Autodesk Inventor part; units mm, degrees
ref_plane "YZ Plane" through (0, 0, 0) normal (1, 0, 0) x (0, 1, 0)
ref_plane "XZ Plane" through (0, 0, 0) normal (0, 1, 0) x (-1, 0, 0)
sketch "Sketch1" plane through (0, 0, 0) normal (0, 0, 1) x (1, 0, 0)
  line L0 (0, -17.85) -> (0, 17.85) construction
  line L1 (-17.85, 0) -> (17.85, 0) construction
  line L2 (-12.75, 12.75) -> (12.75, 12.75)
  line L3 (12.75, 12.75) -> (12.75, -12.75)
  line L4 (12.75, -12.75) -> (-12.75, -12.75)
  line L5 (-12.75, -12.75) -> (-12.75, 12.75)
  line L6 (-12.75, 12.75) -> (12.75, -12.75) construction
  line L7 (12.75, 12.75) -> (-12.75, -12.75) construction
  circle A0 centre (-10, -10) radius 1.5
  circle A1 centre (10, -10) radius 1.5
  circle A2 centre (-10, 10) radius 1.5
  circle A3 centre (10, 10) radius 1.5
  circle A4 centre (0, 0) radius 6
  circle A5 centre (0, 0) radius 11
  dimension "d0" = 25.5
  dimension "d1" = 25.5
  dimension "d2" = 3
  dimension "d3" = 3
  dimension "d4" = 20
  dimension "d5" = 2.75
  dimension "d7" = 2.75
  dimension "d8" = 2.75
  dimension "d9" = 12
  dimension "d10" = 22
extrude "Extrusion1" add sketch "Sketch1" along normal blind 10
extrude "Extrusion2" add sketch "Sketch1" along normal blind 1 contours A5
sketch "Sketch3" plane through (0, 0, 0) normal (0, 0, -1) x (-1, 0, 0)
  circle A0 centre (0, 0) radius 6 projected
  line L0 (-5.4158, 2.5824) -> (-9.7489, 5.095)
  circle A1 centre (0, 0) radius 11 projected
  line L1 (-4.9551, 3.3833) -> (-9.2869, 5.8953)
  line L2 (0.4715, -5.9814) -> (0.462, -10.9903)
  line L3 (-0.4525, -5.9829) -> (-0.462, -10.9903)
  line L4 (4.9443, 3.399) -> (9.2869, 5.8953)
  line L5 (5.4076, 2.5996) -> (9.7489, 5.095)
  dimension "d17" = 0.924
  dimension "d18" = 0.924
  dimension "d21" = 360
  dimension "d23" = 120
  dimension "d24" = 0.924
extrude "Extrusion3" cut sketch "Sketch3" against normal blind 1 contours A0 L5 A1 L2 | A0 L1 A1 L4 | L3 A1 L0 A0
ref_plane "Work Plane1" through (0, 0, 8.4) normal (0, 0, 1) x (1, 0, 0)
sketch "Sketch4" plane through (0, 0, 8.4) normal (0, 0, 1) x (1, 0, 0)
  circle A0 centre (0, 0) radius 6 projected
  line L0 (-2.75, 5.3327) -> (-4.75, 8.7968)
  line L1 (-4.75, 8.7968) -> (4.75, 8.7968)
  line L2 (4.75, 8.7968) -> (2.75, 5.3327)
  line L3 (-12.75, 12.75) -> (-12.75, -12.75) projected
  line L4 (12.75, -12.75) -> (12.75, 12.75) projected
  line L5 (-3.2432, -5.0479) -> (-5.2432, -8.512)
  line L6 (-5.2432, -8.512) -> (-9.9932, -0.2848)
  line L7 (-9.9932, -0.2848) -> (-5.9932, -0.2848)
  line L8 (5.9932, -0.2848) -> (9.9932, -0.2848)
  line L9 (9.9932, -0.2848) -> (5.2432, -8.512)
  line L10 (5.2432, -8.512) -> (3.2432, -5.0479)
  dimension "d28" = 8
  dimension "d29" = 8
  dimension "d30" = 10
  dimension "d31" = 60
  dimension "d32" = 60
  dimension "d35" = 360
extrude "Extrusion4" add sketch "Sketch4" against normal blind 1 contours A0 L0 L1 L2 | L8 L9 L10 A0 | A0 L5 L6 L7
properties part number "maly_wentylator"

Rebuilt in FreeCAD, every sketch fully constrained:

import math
import FreeCAD as App
import Part
import Sketcher

V = App.Vector
Q = App.Units.Quantity

doc = App.newDocument("Part")
body = doc.addObject("PartDesign::Body", "Body")
body.AllowCompound = True

# Sketch on XY plane
sketch1 = body.newObject("Sketcher::SketchObject", "Sketch")
sketch1.AttachmentSupport = (doc.getObject("XY_Plane"), [""])
sketch1.MapMode = "FlatFace"
sketch1.addGeometry([
    Part.LineSegment(V(12.75, 12.75, 0), V(-12.75, 12.75, 0)),  # 0
    Part.LineSegment(V(-12.75, 12.75, 0), V(-12.75, -12.75, 0)),  # 1
    Part.LineSegment(V(-12.75, -12.75, 0), V(12.75, -12.75, 0)),  # 2
    Part.LineSegment(V(12.75, -12.75, 0), V(12.75, 12.75, 0)),  # 3
    Part.Circle(V(-10, -10, 0), V(0, 0, 1), 1.5),  # 4
    Part.Circle(V(10, -10, 0), V(0, 0, 1), 1.5),  # 5
    Part.Circle(V(-10, 10, 0), V(0, 0, 1), 1.5),  # 6
    Part.Circle(V(0, 0, 0), V(0, 0, 1), 11),  # 7
    Part.Circle(V(10, 10, 0), V(0, 0, 1), 1.5),  # 8
    Part.Circle(V(0, 0, 0), V(0, 0, 1), 6),  # 9
], False)
sketch1.addConstraint([
    Sketcher.Constraint("Coincident", 0, 2, 1, 1),
    Sketcher.Constraint("Coincident", 1, 2, 2, 1),
    Sketcher.Constraint("Coincident", 2, 2, 3, 1),
    Sketcher.Constraint("Coincident", 3, 2, 0, 1),
    Sketcher.Constraint("Horizontal", 0),
    Sketcher.Constraint("Vertical", 1),
    Sketcher.Constraint("Horizontal", 2),
    Sketcher.Constraint("Vertical", 3),
    Sketcher.Constraint("Coincident", 7, 3, -1, 1),
    Sketcher.Constraint("Coincident", 9, 3, -1, 1),
    Sketcher.Constraint("Equal", 4, 5),
    Sketcher.Constraint("Equal", 5, 6),
    Sketcher.Constraint("Equal", 6, 8),
    Sketcher.Constraint("Symmetric", 5, 3, 6, 3, -1, 1),
    Sketcher.Constraint("Symmetric", 4, 3, 8, 3, -1, 1),
    Sketcher.Constraint("Symmetric", 0, 2, 2, 2, -1, 1),
    Sketcher.Constraint("Symmetric", 4, 3, 5, 3, -2),
    Sketcher.Constraint("Equal", 2, 1),
    Sketcher.Constraint("Diameter", 4, 3.0),
    Sketcher.Constraint("Diameter", 7, 22.0),
    Sketcher.Constraint("Diameter", 9, 12.0),
    Sketcher.Constraint("DistanceX", 0, 2, 0, 1, 25.5),
    Sketcher.Constraint("DistanceX", 4, 3, 5, 3, 20.0),
    Sketcher.Constraint("DistanceY", 4, 3, 6, 3, 20.0),
])
pad1 = body.newObject("PartDesign::Pad", "Pad")
pad1.Profile = sketch1
pad1.Length = 10

# Sketch on XY plane
sketch2 = body.newObject("Sketcher::SketchObject", "Sketch001")
sketch2.AttachmentSupport = (doc.getObject("XY_Plane"), [""])
sketch2.MapMode = "FlatFace"
sketch2.addGeometry([
    Part.Circle(V(0, 0, 0), V(0, 0, 1), 11),
    Part.Circle(V(0, 0, 0), V(0, 0, 1), 6),
], False)
sketch2.addConstraint([
    Sketcher.Constraint("Coincident", 0, 3, -1, 1),
    Sketcher.Constraint("Coincident", 1, 3, -1, 1),
    Sketcher.Constraint("Diameter", 0, 22.0),
    Sketcher.Constraint("Diameter", 1, 12.0),
])
pad2 = body.newObject("PartDesign::Pad", "Pad001")
pad2.Profile = sketch2
pad2.Length = 1

# Sketch on XY plane
sketch3 = body.newObject("Sketcher::SketchObject", "Sketch002")
sketch3.AttachmentSupport = (doc.getObject("XY_Plane"), [""])
sketch3.MapMode = "FlatFace"
sketch3.addGeometry([
    Part.ArcOfCircle(Part.Circle(V(0, 0, 0), V(0, 0, 1), 6), math.radians(154.324972), math.radians(265.492826)),  # 0
    Part.LineSegment(V(-0.4715, -5.9814, 0), V(-0.462, -10.9903, 0)),  # 1
    Part.ArcOfCircle(Part.Circle(V(0, 0, 0), V(0, 0, 1), 11), math.radians(152.407394), math.radians(267.592871)),  # 2
    Part.LineSegment(V(-9.7489, 5.095, 0), V(-5.4076, 2.5996, 0)),  # 3
    Part.ArcOfCircle(Part.Circle(V(0, 0, 0), V(0, 0, 1), 6), math.radians(34.324928), math.radians(145.4931)),  # 4
    Part.LineSegment(V(-4.9443, 3.399, 0), V(-9.2869, 5.8953, 0)),  # 5
    Part.ArcOfCircle(Part.Circle(V(0, 0, 0), V(0, 0, 1), 11), math.radians(32.407274), math.radians(147.592726)),  # 6
    Part.LineSegment(V(9.2869, 5.8953, 0), V(4.9551, 3.3833, 0)),  # 7
    Part.LineSegment(V(0.462, -10.9903, 0), V(0.4525, -5.9829, 0)),  # 8
    Part.ArcOfCircle(Part.Circle(V(0, 0, 0), V(0, 0, 1), 6), math.radians(-85.674828), math.radians(25.493069)),  # 9
    Part.LineSegment(V(5.4158, 2.5824, 0), V(9.7489, 5.095, 0)),  # 10
    Part.ArcOfCircle(Part.Circle(V(0, 0, 0), V(0, 0, 1), 11), math.radians(-87.592871), math.radians(27.592606)),  # 11
], False)
sketch3.addConstraint([
    Sketcher.Constraint("Coincident", 0, 2, 1, 1),
    Sketcher.Constraint("Coincident", 1, 2, 2, 2),
    Sketcher.Constraint("Coincident", 2, 1, 3, 1),
    Sketcher.Constraint("Coincident", 3, 2, 0, 1),
    Sketcher.Constraint("Coincident", 4, 2, 5, 1),
    Sketcher.Constraint("Coincident", 5, 2, 6, 2),
    Sketcher.Constraint("Coincident", 6, 1, 7, 1),
    Sketcher.Constraint("Coincident", 7, 2, 4, 1),
    Sketcher.Constraint("Coincident", 8, 2, 9, 1),
    Sketcher.Constraint("Coincident", 9, 2, 10, 1),
    Sketcher.Constraint("Coincident", 10, 2, 11, 2),
    Sketcher.Constraint("Coincident", 11, 1, 8, 1),
    Sketcher.Constraint("Coincident", 0, 3, -1, 1),
    Sketcher.Constraint("Coincident", 2, 3, -1, 1),
    Sketcher.Constraint("Coincident", 4, 3, -1, 1),
    Sketcher.Constraint("Coincident", 6, 3, -1, 1),
    Sketcher.Constraint("Coincident", 9, 3, -1, 1),
    Sketcher.Constraint("Coincident", 11, 3, -1, 1),
    Sketcher.Constraint("Equal", 0, 4),
    Sketcher.Constraint("Equal", 2, 6),
    Sketcher.Constraint("Equal", 4, 9),
    Sketcher.Constraint("Equal", 6, 11),
    Sketcher.Constraint("Parallel", 3, 5),
    Sketcher.Constraint("Parallel", 1, 8),
    Sketcher.Constraint("Parallel", 7, 10),
    Sketcher.Constraint("Horizontal", 5, 2, 6, 1),
    Sketcher.Constraint("Horizontal", 2, 1, 10, 2),
    Sketcher.Constraint("Horizontal", 1, 2, 11, 1),
    Sketcher.Constraint("Equal", 1, 5),
    Sketcher.Constraint("Equal", 3, 7),
    Sketcher.Constraint("Equal", 7, 8),
    Sketcher.Constraint("Radius", 0, 6.0),
    Sketcher.Constraint("Radius", 2, 11.0),
    Sketcher.Constraint("DistanceX", 0, 2, 8, 2, 0.924),
    Sketcher.Constraint("Angle", 3, Q("-29.8905 deg")),
    Sketcher.Constraint("Angle", 7, Q("-149.8907 deg")),
])
pocket1 = body.newObject("PartDesign::Pocket", "Pocket")
pocket1.Profile = sketch3
pocket1.Length = 1
pocket1.Reversed = True

# Sketch on XY plane
sketch4 = body.newObject("Sketcher::SketchObject", "Sketch003")
sketch4.AttachmentSupport = (doc.getObject("XY_Plane"), [""])
sketch4.MapMode = "FlatFace"
sketch4.AttachmentOffset = App.Placement(V(0, 0, 8.4), App.Rotation())
sketch4.addGeometry([
    Part.ArcOfCircle(Part.Circle(V(0, 0, 0), V(0, 0, 1), 6), math.radians(62.720465), math.radians(117.279535)),  # 0
    Part.LineSegment(V(2.75, 5.3327, 0), V(4.75, 8.7968, 0)),  # 1
    Part.LineSegment(V(4.75, 8.7968, 0), V(-4.75, 8.7968, 0)),  # 2
    Part.LineSegment(V(-4.75, 8.7968, 0), V(-2.75, 5.3327, 0)),  # 3
    Part.LineSegment(V(9.9932, -0.2848, 0), V(5.9932, -0.2848, 0)),  # 4
    Part.ArcOfCircle(Part.Circle(V(0, 0, 0), V(0, 0, 1), 6), math.radians(-57.279864), math.radians(-2.720679)),  # 5
    Part.LineSegment(V(3.2432, -5.0479, 0), V(5.2432, -8.512, 0)),  # 6
    Part.LineSegment(V(5.2432, -8.512, 0), V(9.9932, -0.2848, 0)),  # 7
    Part.ArcOfCircle(Part.Circle(V(0, 0, 0), V(0, 0, 1), 6), math.radians(-177.279321), math.radians(-122.720136)),  # 8
    Part.LineSegment(V(-5.9932, -0.2848, 0), V(-9.9932, -0.2848, 0)),  # 9
    Part.LineSegment(V(-9.9932, -0.2848, 0), V(-5.2432, -8.512, 0)),  # 10
    Part.LineSegment(V(-5.2432, -8.512, 0), V(-3.2432, -5.0479, 0)),  # 11
], False)
sketch4.addConstraint([
    Sketcher.Constraint("Coincident", 0, 1, 1, 1),
    Sketcher.Constraint("Coincident", 1, 2, 2, 1),
    Sketcher.Constraint("Coincident", 2, 2, 3, 1),
    Sketcher.Constraint("Coincident", 3, 2, 0, 2),
    Sketcher.Constraint("Coincident", 4, 2, 5, 2),
    Sketcher.Constraint("Coincident", 5, 1, 6, 1),
    Sketcher.Constraint("Coincident", 6, 2, 7, 1),
    Sketcher.Constraint("Coincident", 7, 2, 4, 1),
    Sketcher.Constraint("Coincident", 8, 1, 9, 1),
    Sketcher.Constraint("Coincident", 9, 2, 10, 1),
    Sketcher.Constraint("Coincident", 10, 2, 11, 1),
    Sketcher.Constraint("Coincident", 11, 2, 8, 2),
    Sketcher.Constraint("Horizontal", 2),
    Sketcher.Constraint("Horizontal", 4),
    Sketcher.Constraint("Horizontal", 9),
    Sketcher.Constraint("Coincident", 0, 3, -1, 1),
    Sketcher.Constraint("Coincident", 5, 3, -1, 1),
    Sketcher.Constraint("Coincident", 8, 3, -1, 1),
    Sketcher.Constraint("Equal", 0, 5),
    Sketcher.Constraint("Equal", 5, 8),
    Sketcher.Constraint("Symmetric", 7, 2, 9, 2, -2),
    Sketcher.Constraint("Symmetric", 6, 2, 10, 2, -2),
    Sketcher.Constraint("Parallel", 3, 6),
    Sketcher.Constraint("Parallel", 1, 7),
    Sketcher.Constraint("Parallel", 6, 10),
    Sketcher.Constraint("Parallel", 7, 11),
    Sketcher.Constraint("Horizontal", 0, 1, 3, 2),
    Sketcher.Constraint("Equal", 3, 6),
    Sketcher.Constraint("Angle", 1, Q("60 deg")),
    Sketcher.Constraint("Radius", 0, 6.0),
    Sketcher.Constraint("DistanceX", 4, 2, 4, 1, 4.0),
    Sketcher.Constraint("Distance", 1, 4.0),
    Sketcher.Constraint("DistanceX", 2, 2, 2, 1, 9.5),
    Sketcher.Constraint("Distance", 7, 9.5),
])
pad3 = body.newObject("PartDesign::Pad", "Pad002")
pad3.Profile = sketch4
pad3.Length = 1
pad3.Reversed = True

doc.recompute()
